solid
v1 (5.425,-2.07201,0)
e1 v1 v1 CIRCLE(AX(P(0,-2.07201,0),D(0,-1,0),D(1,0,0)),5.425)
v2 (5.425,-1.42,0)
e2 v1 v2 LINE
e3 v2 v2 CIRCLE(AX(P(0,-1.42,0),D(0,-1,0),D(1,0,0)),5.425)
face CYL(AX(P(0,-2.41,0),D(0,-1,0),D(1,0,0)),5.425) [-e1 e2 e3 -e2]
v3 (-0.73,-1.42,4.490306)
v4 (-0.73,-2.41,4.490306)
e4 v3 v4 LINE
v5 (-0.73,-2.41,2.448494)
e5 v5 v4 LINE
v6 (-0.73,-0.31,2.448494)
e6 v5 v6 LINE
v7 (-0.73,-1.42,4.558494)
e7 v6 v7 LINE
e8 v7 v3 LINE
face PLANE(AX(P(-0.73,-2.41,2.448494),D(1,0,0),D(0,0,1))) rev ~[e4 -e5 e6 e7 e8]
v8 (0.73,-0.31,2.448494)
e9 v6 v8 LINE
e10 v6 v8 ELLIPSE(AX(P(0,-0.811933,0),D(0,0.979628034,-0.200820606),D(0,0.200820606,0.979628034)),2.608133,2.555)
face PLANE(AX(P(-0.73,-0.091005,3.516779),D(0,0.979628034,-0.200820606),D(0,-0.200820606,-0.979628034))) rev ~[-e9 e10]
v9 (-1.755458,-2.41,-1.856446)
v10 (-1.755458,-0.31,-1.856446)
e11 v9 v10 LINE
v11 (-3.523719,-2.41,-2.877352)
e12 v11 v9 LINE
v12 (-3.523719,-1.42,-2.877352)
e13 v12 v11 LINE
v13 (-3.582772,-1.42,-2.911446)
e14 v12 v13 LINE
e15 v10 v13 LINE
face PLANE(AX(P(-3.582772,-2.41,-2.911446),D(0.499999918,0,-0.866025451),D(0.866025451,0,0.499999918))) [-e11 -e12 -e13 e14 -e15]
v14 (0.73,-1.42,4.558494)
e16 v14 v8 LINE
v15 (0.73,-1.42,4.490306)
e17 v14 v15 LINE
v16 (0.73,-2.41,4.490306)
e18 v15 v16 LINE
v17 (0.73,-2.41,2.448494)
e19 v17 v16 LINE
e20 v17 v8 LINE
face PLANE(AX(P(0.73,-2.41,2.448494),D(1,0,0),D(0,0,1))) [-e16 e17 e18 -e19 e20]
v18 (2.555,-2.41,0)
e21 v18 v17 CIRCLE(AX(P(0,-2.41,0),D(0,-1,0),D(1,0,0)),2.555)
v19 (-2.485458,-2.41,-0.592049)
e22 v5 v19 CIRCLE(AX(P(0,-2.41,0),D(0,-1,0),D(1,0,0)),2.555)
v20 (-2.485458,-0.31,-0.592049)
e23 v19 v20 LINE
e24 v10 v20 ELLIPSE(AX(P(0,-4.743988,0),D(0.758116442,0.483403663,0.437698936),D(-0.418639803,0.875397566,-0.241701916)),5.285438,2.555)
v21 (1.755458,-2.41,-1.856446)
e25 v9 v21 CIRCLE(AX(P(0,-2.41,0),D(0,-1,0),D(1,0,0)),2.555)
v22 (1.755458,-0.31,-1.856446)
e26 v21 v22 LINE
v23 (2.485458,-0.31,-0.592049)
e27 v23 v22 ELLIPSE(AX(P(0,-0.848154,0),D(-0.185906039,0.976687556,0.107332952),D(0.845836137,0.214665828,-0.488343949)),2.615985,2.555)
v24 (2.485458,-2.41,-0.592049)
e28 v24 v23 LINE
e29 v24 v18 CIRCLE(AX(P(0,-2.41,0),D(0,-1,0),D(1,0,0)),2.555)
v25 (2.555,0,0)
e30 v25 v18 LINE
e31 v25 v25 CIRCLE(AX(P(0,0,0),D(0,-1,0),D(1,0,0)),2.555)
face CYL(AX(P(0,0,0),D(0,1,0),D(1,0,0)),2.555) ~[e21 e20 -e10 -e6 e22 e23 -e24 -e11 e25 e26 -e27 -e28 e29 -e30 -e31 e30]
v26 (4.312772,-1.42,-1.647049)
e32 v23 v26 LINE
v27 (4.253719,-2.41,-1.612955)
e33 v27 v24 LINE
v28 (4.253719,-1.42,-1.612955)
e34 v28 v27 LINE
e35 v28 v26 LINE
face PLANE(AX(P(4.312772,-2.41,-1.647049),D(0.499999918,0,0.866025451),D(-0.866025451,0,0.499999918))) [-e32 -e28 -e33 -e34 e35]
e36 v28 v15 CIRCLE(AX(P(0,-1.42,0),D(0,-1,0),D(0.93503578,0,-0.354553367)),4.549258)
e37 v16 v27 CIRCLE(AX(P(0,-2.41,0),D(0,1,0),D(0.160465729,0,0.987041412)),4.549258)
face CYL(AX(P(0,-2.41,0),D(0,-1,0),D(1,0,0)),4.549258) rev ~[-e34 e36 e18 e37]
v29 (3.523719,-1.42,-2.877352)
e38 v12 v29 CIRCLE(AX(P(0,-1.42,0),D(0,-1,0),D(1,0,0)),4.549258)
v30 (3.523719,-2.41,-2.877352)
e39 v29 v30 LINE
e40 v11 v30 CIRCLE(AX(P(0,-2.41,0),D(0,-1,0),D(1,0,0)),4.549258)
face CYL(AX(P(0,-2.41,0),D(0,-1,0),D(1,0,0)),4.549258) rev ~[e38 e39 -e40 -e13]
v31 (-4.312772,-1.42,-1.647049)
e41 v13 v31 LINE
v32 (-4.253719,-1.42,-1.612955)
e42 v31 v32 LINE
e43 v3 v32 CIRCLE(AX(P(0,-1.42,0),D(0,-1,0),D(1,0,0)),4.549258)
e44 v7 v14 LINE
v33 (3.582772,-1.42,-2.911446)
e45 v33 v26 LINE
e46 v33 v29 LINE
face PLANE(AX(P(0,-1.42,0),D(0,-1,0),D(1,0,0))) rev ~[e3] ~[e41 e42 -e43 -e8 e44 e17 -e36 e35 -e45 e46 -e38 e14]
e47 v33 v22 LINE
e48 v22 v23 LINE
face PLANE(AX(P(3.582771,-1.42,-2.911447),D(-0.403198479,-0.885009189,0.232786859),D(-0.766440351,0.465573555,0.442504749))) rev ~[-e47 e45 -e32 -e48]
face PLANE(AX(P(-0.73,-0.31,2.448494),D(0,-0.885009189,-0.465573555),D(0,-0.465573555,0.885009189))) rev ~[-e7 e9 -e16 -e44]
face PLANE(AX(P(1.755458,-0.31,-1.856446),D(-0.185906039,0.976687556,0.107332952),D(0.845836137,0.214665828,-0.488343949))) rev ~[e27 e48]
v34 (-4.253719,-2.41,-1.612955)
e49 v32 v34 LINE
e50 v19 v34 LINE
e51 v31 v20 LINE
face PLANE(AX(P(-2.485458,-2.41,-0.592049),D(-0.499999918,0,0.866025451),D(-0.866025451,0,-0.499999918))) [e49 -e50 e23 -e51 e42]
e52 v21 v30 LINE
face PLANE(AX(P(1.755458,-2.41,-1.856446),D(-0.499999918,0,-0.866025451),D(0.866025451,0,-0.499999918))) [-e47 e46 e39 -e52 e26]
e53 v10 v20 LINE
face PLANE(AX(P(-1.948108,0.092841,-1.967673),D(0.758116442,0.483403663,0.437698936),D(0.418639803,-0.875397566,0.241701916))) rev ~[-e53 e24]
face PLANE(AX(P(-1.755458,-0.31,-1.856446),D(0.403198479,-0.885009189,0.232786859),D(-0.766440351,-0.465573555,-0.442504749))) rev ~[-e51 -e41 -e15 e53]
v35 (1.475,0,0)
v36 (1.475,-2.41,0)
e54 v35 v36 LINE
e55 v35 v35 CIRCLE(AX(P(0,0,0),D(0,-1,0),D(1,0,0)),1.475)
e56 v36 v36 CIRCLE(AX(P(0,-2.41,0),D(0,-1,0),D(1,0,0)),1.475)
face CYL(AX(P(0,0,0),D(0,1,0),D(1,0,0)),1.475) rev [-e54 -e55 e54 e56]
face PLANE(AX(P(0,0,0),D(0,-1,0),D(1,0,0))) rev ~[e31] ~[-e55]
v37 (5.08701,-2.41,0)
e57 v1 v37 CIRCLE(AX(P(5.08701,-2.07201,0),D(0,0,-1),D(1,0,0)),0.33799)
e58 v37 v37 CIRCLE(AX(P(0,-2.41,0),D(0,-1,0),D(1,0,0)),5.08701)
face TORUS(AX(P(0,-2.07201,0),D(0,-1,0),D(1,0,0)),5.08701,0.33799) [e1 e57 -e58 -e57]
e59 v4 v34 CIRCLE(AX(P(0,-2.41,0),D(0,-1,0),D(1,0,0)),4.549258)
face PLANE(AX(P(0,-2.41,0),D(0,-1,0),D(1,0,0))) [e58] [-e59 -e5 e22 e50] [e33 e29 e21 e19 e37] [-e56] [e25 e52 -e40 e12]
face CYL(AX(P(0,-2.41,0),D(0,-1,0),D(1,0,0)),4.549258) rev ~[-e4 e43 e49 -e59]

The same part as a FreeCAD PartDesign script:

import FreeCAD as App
import Part
import Sketcher
from FreeCAD import Vector
Q = App.Units.Quantity


def edges_at(feature, points):
    """Names of the edges that pass closest to the given points."""
    edges = feature.Shape.Edges
    near = lambda p: min(range(len(edges)), key=lambda i: edges[i].distToShape(Part.Vertex(*p))[0])
    return sorted({f"Edge{near(p) + 1}" for p in points})

doc = App.newDocument("Part")
body = doc.addObject("PartDesign::Body", "Body")

sketch1 = body.newObject("Sketcher::SketchObject", "Sketch")
sketch1.AttachmentSupport = (doc.getObject("XZ_Plane"), [""])
sketch1.MapMode = "FlatFace"
sketch1.addGeometry(Part.Circle(Vector(0, 0, 0), Vector(0, 0, 1), 2.6), False)
sketch1.addGeometry(Part.Circle(Vector(0, 0, 0), Vector(0, 0, 1), 1.5), False)
sketch1.addConstraint(Sketcher.Constraint("Coincident", 0, 3, -1, 1))
sketch1.addConstraint(Sketcher.Constraint("Coincident", 1, 3, -1, 1))
sketch1.addConstraint(Sketcher.Constraint("Diameter", 0, 5.11))
sketch1.addConstraint(Sketcher.Constraint("Diameter", 1, 2.95))
pad1 = body.newObject("PartDesign::Pad", "Pad")
pad1.Profile = sketch1
pad1.Length = 2.41

sketch2 = body.newObject("Sketcher::SketchObject", "Sketch001")
sketch2.AttachmentSupport = (doc.getObject("XZ_Plane"), [""])
sketch2.MapMode = "FlatFace"
sketch2.AttachmentOffset = App.Placement(Vector(0, 0, 2.41), App.Rotation())
sketch2.addGeometry(Part.LineSegment(Vector(-0.7, 4.6, 0), Vector(-0.7, 2.4, 0)), False)
sketch2.addGeometry(Part.LineSegment(Vector(-0.7, 2.4, 0), Vector(0.7, 2.4, 0)), False)
sketch2.addGeometry(Part.LineSegment(Vector(0.7, 2.4, 0), Vector(0.7, 4.6, 0)), False)
sketch2.addGeometry(Part.LineSegment(Vector(0.7, 4.6, 0), Vector(-0.7, 4.6, 0)), False)
sketch2.addGeometry(Part.LineSegment(Vector(-3.6, -2.9, 0), Vector(-1.8, -1.9, 0)), False)
sketch2.addGeometry(Part.LineSegment(Vector(-1.8, -1.9, 0), Vector(-2.5, -0.6, 0)), False)
sketch2.addGeometry(Part.LineSegment(Vector(-2.5, -0.6, 0), Vector(-4.3, -1.6, 0)), False)
sketch2.addGeometry(Part.LineSegment(Vector(-4.3, -1.6, 0), Vector(-3.6, -2.9, 0)), False)
sketch2.addGeometry(Part.LineSegment(Vector(4.3, -1.6, 0), Vector(2.5, -0.6, 0)), False)
sketch2.addGeometry(Part.LineSegment(Vector(2.5, -0.6, 0), Vector(1.8, -1.9, 0)), False)
sketch2.addGeometry(Part.LineSegment(Vector(1.8, -1.9, 0), Vector(3.6, -2.9, 0)), False)
sketch2.addGeometry(Part.LineSegment(Vector(3.6, -2.9, 0), Vector(4.3, -1.6, 0)), False)
sketch2.addConstraint(Sketcher.Constraint("Coincident", 0, 2, 1, 1))
sketch2.addConstraint(Sketcher.Constraint("Coincident", 1, 2, 2, 1))
sketch2.addConstraint(Sketcher.Constraint("Coincident", 2, 2, 3, 1))
sketch2.addConstraint(Sketcher.Constraint("Coincident", 3, 2, 0, 1))
sketch2.addConstraint(Sketcher.Constraint("Coincident", 4, 2, 5, 1))
sketch2.addConstraint(Sketcher.Constraint("Coincident", 5, 2, 6, 1))
sketch2.addConstraint(Sketcher.Constraint("Coincident", 6, 2, 7, 1))
sketch2.addConstraint(Sketcher.Constraint("Coincident", 7, 2, 4, 1))
sketch2.addConstraint(Sketcher.Constraint("Coincident", 8, 2, 9, 1))
sketch2.addConstraint(Sketcher.Constraint("Coincident", 9, 2, 10, 1))
sketch2.addConstraint(Sketcher.Constraint("Coincident", 10, 2, 11, 1))
sketch2.addConstraint(Sketcher.Constraint("Coincident", 11, 2, 8, 1))
sketch2.addConstraint(Sketcher.Constraint("Vertical", 0))
sketch2.addConstraint(Sketcher.Constraint("Horizontal", 1))
sketch2.addConstraint(Sketcher.Constraint("Vertical", 2))
sketch2.addConstraint(Sketcher.Constraint("Horizontal", 3))
sketch2.addConstraint(Sketcher.Constraint("Symmetric", 5, 2, 8, 2, -2))
sketch2.addConstraint(Sketcher.Constraint("Symmetric", 4, 2, 9, 2, -2))
sketch2.addConstraint(Sketcher.Constraint("Symmetric", 7, 2, 10, 2, -2))
sketch2.addConstraint(Sketcher.Constraint("Symmetric", 6, 2, 11, 2, -2))
sketch2.addConstraint(Sketcher.Constraint("Perpendicular", 4, 5))
sketch2.addConstraint(Sketcher.Constraint("Perpendicular", 5, 6))
sketch2.addConstraint(Sketcher.Constraint("Perpendicular", 6, 7))
sketch2.addConstraint(Sketcher.Constraint("Angle", 4, Q("29.999995 deg")))
sketch2.addConstraint(Sketcher.Constraint("DistanceX", 1, 1, 1, 2, 1.46))
sketch2.addConstraint(Sketcher.Constraint("DistanceY", 0, 2, 0, 1, 2.11))
sketch2.addConstraint(Sketcher.Constraint("Distance", 4, 2.11))
sketch2.addConstraint(Sketcher.Constraint("Distance", 5, 1.46))
sketch2.addConstraint(Sketcher.Constraint("DistanceX", 0, 2, -1, 1, 0.73))
sketch2.addConstraint(Sketcher.Constraint("DistanceX", 5, 2, -1, 1, 2.485458))
sketch2.addConstraint(Sketcher.Constraint("DistanceY", 5, 2, -1, 1, 0.592049))
sketch2.addConstraint(Sketcher.Constraint("DistanceY", 4, 2, 0, 2, 4.30494))
pad2 = body.newObject("PartDesign::Pad", "Pad001")
pad2.Profile = sketch2
pad2.Length = 2.1
pad2.Reversed = True

sketch3 = body.newObject("Sketcher::SketchObject", "Sketch002")
sketch3.Placement = App.Placement(Vector(-0.365, 0, -0.632199), App.Rotation(Vector(0.866025303, 0, -0.500000175), Vector(0, -1, 0), Vector(-0.500000175, 0, -0.866025303), "ZXY"))
sketch3.addGeometry(Part.LineSegment(Vector(4.56, 1.42, 0), Vector(2.45, 0.31, 0)), False)
sketch3.addGeometry(Part.LineSegment(Vector(2.45, 0.31, 0), Vector(3.48, 0.08, 0)), False)
sketch3.addGeometry(Part.LineSegment(Vector(3.48, 0.08, 0), Vector(4.9, 0.21, 0)), False)
sketch3.addGeometry(Part.LineSegment(Vector(4.9, 0.21, 0), Vector(4.9, 2.57, 0)), False)
sketch3.addGeometry(Part.LineSegment(Vector(4.9, 2.57, 0), Vector(4.71, 2.48, 0)), False)
sketch3.addGeometry(Part.LineSegment(Vector(4.71, 2.48, 0), Vector(4.71, 1.64, 0)), False)
sketch3.addGeometry(Part.LineSegment(Vector(4.71, 1.64, 0), Vector(4.56, 1.42, 0)), False)
sketch3.addConstraint(Sketcher.Constraint("Coincident", 0, 2, 1, 1))
sketch3.addConstraint(Sketcher.Constraint("Coincident", 1, 2, 2, 1))
sketch3.addConstraint(Sketcher.Constraint("Coincident", 2, 2, 3, 1))
sketch3.addConstraint(Sketcher.Constraint("Coincident", 3, 2, 4, 1))
sketch3.addConstraint(Sketcher.Constraint("Coincident", 4, 2, 5, 1))
sketch3.addConstraint(Sketcher.Constraint("Coincident", 5, 2, 6, 1))
sketch3.addConstraint(Sketcher.Constraint("Coincident", 6, 2, 0, 1))
sketch3.addConstraint(Sketcher.Constraint("Vertical", 3))
sketch3.addConstraint(Sketcher.Constraint("Vertical", 5))
sketch3.addConstraint(Sketcher.Constraint("DistanceY", -1, 1, 0, 2, 0.31))
sketch3.addConstraint(Sketcher.Constraint("DistanceY", -1, 1, 6, 2, 1.42))
sketch3.addConstraint(Sketcher.Constraint("DistanceX", -1, 1, 1, 2, 3.479598))
sketch3.addConstraint(Sketcher.Constraint("Distance", 6, 0.271181))
sketch3.addConstraint(Sketcher.Constraint("DistanceY", 3, 1, 3, 2, 2.355663))
sketch3.addConstraint(Sketcher.Constraint("DistanceY", 5, 2, 5, 1, 0.836953))
sketch3.addConstraint(Sketcher.Constraint("DistanceX", -1, 1, 2, 2, 4.896949))
sketch3.addConstraint(Sketcher.Constraint("DistanceY", -1, 1, 3, 2, 2.56652))
sketch3.addConstraint(Sketcher.Constraint("DistanceX", -1, 1, 4, 2, 4.714418))
sketch3.addConstraint(Sketcher.Constraint("DistanceY", -1, 1, 5, 2, 1.641871))
sketch3.addConstraint(Sketcher.Constraint("DistanceY", 1, 2, 4, 2, 2.39545))
sketch3.addConstraint(Sketcher.Constraint("Distance", 0, 2.384156))
pocket1 = body.newObject("PartDesign::Pocket", "Pocket")
pocket1.Profile = sketch3
pocket1.Length = 25

sketch4 = body.newObject("Sketcher::SketchObject", "Sketch003")
sketch4.AttachmentSupport = (doc.getObject("YZ_Plane"), [""])
sketch4.MapMode = "FlatFace"
sketch4.AttachmentOffset = App.Placement(Vector(0, 0, -0.73), App.Rotation())
sketch4.addGeometry(Part.LineSegment(Vector(-0.1, 3.5, 0), Vector(-0.3, 2.4, 0)), False)
sketch4.addGeometry(Part.LineSegment(Vector(-0.3, 2.4, 0), Vector(-1.4, 4.6, 0)), False)
sketch4.addGeometry(Part.LineSegment(Vector(-1.4, 4.6, 0), Vector(-2.4, 4.7, 0)), False)
sketch4.addGeometry(Part.LineSegment(Vector(-2.4, 4.7, 0), Vector(-0.2, 5, 0)), False)
sketch4.addGeometry(Part.LineSegment(Vector(-0.2, 5, 0), Vector(-0.1, 3.5, 0)), False)
sketch4.addConstraint(Sketcher.Constraint("Coincident", 0, 2, 1, 1))
sketch4.addConstraint(Sketcher.Constraint("Coincident", 1, 2, 2, 1))
sketch4.addConstraint(Sketcher.Constraint("Coincident", 2, 2, 3, 1))
sketch4.addConstraint(Sketcher.Constraint("Coincident", 3, 2, 4, 1))
sketch4.addConstraint(Sketcher.Constraint("Coincident", 4, 2, 0, 1))
sketch4.addConstraint(Sketcher.Constraint("DistanceX", 2, 2, 0, 2, 2.1))
sketch4.addConstraint(Sketcher.Constraint("DistanceX", 0, 2, -1, 1, 0.31))
sketch4.addConstraint(Sketcher.Constraint("DistanceX", 1, 2, -1, 1, 1.42))
sketch4.addConstraint(Sketcher.Constraint("DistanceY", 0, 2, 1, 2, 2.11))
sketch4.addConstraint(Sketcher.Constraint("Distance", 0, 1.090501))
sketch4.addConstraint(Sketcher.Constraint("Distance", 4, 1.505391))
sketch4.addConstraint(Sketcher.Constraint("DistanceY", -1, 1, 3, 2, 5.01886))
sketch4.addConstraint(Sketcher.Constraint("DistanceY", -1, 1, 4, 2, 3.516779))
sketch4.addConstraint(Sketcher.Constraint("DistanceY", 1, 2, 2, 2, 0.183229))
sketch4.addConstraint(Sketcher.Constraint("Distance", 3, 2.236463))
pocket2 = body.newObject("PartDesign::Pocket", "Pocket001")
pocket2.Profile = sketch4
pocket2.Length = 25
pocket2.Reversed = True

sketch5 = body.newObject("Sketcher::SketchObject", "Sketch004")
sketch5.Placement = App.Placement(Vector(0.365, 0, -0.632199), App.Rotation(Vector(0.866025303, 0, 0.500000175), Vector(0, -1, 0), Vector(0.500000175, 0, -0.866025303), "ZXY"))
sketch5.addGeometry(Part.LineSegment(Vector(-4.56, 1.42, 0), Vector(-5.5, 1.44, 0)), False)
sketch5.addGeometry(Part.LineSegment(Vector(-5.5, 1.44, 0), Vector(-4.84, -0.09, 0)), False)
sketch5.addGeometry(Part.LineSegment(Vector(-4.84, -0.09, 0), Vector(-2.67, -0.09, 0)), False)
sketch5.addGeometry(Part.LineSegment(Vector(-2.67, -0.09, 0), Vector(-2.45, 0.31, 0)), False)
sketch5.addGeometry(Part.LineSegment(Vector(-2.45, 0.31, 0), Vector(-4.56, 1.42, 0)), False)
sketch5.addConstraint(Sketcher.Constraint("Coincident", 0, 2, 1, 1))
sketch5.addConstraint(Sketcher.Constraint("Coincident", 1, 2, 2, 1))
sketch5.addConstraint(Sketcher.Constraint("Coincident", 2, 2, 3, 1))
sketch5.addConstraint(Sketcher.Constraint("Coincident", 3, 2, 4, 1))
sketch5.addConstraint(Sketcher.Constraint("Coincident", 4, 2, 0, 1))
sketch5.addConstraint(Sketcher.Constraint("Horizontal", 2))
sketch5.addConstraint(Sketcher.Constraint("DistanceY", -1, 1, 3, 2, 0.31))
sketch5.addConstraint(Sketcher.Constraint("DistanceY", -1, 1, 4, 2, 1.42))
sketch5.addConstraint(Sketcher.Constraint("DistanceX", 4, 2, 3, 2, 2.11))
sketch5.addConstraint(Sketcher.Constraint("Distance", 3, 0.460181))
sketch5.addConstraint(Sketcher.Constraint("DistanceX", 2, 1, 2, 2, 2.170025))
sketch5.addConstraint(Sketcher.Constraint("DistanceY", -1, 1, 0, 2, 1.436378))
sketch5.addConstraint(Sketcher.Constraint("DistanceY", 1, 2, -1, 1, 0.092841))
sketch5.addConstraint(Sketcher.Constraint("DistanceX", 0, 2, 2, 2, 2.825129))
sketch5.addConstraint(Sketcher.Constraint("DistanceX", 0, 2, -1, 1, 5.496076))
pocket3 = body.newObject("PartDesign::Pocket", "Pocket002")
pocket3.Profile = sketch5
pocket3.Length = 25

sketch6 = body.newObject("Sketcher::SketchObject", "Sketch005")
sketch6.AttachmentSupport = (doc.getObject("XZ_Plane"), [""])
sketch6.MapMode = "FlatFace"
sketch6.AttachmentOffset = App.Placement(Vector(0, 0, 2.41), App.Rotation())
sketch6.addGeometry(Part.Circle(Vector(0, 0, 0), Vector(0, 0, 1), 5.4), False)
sketch6.addGeometry(Part.Circle(Vector(0, 0, 0), Vector(0, 0, 1), 4.5), False)
sketch6.addConstraint(Sketcher.Constraint("Coincident", 0, 3, -1, 1))
sketch6.addConstraint(Sketcher.Constraint("Coincident", 1, 3, -1, 1))
sketch6.addConstraint(Sketcher.Constraint("Diameter", 0, 10.85))
sketch6.addConstraint(Sketcher.Constraint("Diameter", 1, 9.098516))
pad3 = body.newObject("PartDesign::Pad", "Pad002")
pad3.Profile = sketch6
pad3.Length = 0.99
pad3.Reversed = True
doc.recompute()

fillet = body.newObject("PartDesign::Fillet", "Fillet")
fillet.Base = (pad3, edges_at(pad3, [(-5.425, -2.41, 0)]))
fillet.Radius = 0.33799

doc.recompute()
